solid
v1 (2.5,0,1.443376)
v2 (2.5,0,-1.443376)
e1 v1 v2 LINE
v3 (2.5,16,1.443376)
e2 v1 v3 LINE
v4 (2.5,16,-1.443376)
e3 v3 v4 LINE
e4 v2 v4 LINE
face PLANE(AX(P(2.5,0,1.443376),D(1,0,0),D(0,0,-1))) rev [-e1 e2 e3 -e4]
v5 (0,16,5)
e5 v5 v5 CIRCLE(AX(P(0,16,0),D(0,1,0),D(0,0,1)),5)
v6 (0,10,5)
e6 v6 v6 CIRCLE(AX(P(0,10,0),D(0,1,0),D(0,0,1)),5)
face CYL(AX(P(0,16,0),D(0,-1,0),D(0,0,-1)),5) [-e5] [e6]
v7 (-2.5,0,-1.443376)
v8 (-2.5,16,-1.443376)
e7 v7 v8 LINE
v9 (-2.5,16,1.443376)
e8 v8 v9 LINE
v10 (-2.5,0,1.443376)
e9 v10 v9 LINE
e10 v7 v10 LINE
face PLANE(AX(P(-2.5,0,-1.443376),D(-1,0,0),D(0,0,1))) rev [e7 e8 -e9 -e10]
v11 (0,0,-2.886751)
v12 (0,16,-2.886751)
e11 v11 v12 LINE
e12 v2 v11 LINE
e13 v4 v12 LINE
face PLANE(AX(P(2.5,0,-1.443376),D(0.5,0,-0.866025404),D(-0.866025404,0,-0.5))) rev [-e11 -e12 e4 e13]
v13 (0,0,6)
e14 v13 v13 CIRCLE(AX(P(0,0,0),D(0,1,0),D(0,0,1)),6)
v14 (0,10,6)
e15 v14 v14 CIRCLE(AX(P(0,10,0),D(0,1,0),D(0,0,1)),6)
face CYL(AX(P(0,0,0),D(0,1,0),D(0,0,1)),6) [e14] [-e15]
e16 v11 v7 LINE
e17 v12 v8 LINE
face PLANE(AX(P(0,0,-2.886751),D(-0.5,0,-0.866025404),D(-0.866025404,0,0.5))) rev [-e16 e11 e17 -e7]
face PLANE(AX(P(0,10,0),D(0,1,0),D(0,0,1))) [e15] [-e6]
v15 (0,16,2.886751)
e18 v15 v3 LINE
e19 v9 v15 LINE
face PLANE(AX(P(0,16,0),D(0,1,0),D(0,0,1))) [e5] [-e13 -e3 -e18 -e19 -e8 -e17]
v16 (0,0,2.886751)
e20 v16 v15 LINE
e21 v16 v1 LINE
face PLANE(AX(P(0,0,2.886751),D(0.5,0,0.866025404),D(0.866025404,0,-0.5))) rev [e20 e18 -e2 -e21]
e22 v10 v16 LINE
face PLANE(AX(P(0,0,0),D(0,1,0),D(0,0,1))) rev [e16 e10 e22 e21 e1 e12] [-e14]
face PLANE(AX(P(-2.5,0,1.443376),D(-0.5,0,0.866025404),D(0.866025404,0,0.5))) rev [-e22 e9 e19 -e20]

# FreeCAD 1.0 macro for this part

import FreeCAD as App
import Part
import Sketcher

V = App.Vector
Q = App.Units.Quantity


def add_polygon(sketch, points):
    """Adds a closed chain of lines whose ends are joined by coincident constraints."""
    first, n = sketch.GeometryCount, len(points)
    for a, b in zip(points, points[1:] + points[:1]):
        sketch.addGeometry(Part.LineSegment(App.Vector(*a, 0), App.Vector(*b, 0)), False)
    for i in range(n):
        sketch.addConstraint(Sketcher.Constraint("Coincident", first + i, 2, first + (i + 1) % n, 1))

doc = App.newDocument("Part")
body = doc.addObject("PartDesign::Body", "Body")

# Sketch on XZ plane
sketch1 = body.newObject("Sketcher::SketchObject", "Sketch")
sketch1.AttachmentSupport = (doc.getObject("XZ_Plane"), [""])
sketch1.MapMode = "FlatFace"
sketch1.addGeometry(Part.Circle(V(0, 0, 0), V(0, 0, 1), 7), False)
sketch1.addConstraint([
    Sketcher.Constraint("Coincident", 0, 3, -1, 1),
    Sketcher.Constraint("Diameter", 0, Q("14 mm")),
])
pad1 = body.newObject("PartDesign::Pad", "Pad")
pad1.Profile = sketch1
pad1.Length = 10
pad1.Reversed = True

# Sketch on XZ plane
sketch2 = body.newObject("Sketcher::SketchObject", "Sketch001")
sketch2.AttachmentSupport = (doc.getObject("XZ_Plane"), [""])
sketch2.MapMode = "FlatFace"
sketch2.AttachmentOffset = App.Placement(V(0, 0, -10), App.Rotation())
sketch2.addGeometry(Part.Circle(V(0, 0, 0), V(0, 0, 1), 5), False)
sketch2.addConstraint([
    Sketcher.Constraint("Coincident", 0, 3, -1, 1),
    Sketcher.Constraint("Diameter", 0, Q("10 mm")),
])
pad2 = body.newObject("PartDesign::Pad", "Pad001")
pad2.Profile = sketch2
pad2.Length = 6
pad2.Reversed = True

# Sketch on XZ plane
sketch3 = body.newObject("Sketcher::SketchObject", "Sketch002")
sketch3.AttachmentSupport = (doc.getObject("XZ_Plane"), [""])
sketch3.MapMode = "FlatFace"
sketch3.AttachmentOffset = App.Placement(V(0, 0, -16), App.Rotation())
add_polygon(sketch3, [(2.5, -1.4), (0, -2.9), (-2.5, -1.4), (-2.5, 1.4), (0, 2.9), (2.5, 1.4)])  # lines 0-5
sketch3.addConstraint([
    Sketcher.Constraint("Vertical", 2),
    Sketcher.Constraint("Vertical", 5),
    Sketcher.Constraint("Symmetric", 0, 2, 3, 2, -1, 1),
    Sketcher.Constraint("Symmetric", 1, 2, 4, 2, -1, 1),
    Sketcher.Constraint("PointOnObject", 0, 2, -2),
    Sketcher.Constraint("Parallel", 0, 3),
    Sketcher.Constraint("Horizontal", 2, 2, 4, 2),
    Sketcher.Constraint("Angle", 0, Q("-150 deg")),
    Sketcher.Constraint("DistanceX", 2, 2, 4, 2, Q("5 mm")),
    Sketcher.Constraint("DistanceY", 2, 1, 2, 2, Q("2.886751 mm")),
])
pocket1 = body.newObject("PartDesign::Pocket", "Pocket")
pocket1.Profile = sketch3
pocket1.Type = "ThroughAll"
pocket1.Reversed = True

# Sketch on XZ plane
sketch4 = body.newObject("Sketcher::SketchObject", "Sketch003")
sketch4.AttachmentSupport = (doc.getObject("XZ_Plane"), [""])
sketch4.MapMode = "FlatFace"
sketch4.AttachmentOffset = App.Placement(V(0, 0, -10), App.Rotation())
add_polygon(sketch4, [(-11, -11), (-11, 11), (11, 11), (11, -11)])  # lines 0-3
sketch4.addGeometry(Part.Circle(V(0, 0, 0), V(0, 0, 1), 6), False)  # 4
sketch4.addConstraint([
    Sketcher.Constraint("Vertical", 0),
    Sketcher.Constraint("Horizontal", 1),
    Sketcher.Constraint("Vertical", 2),
    Sketcher.Constraint("Horizontal", 3),
    Sketcher.Constraint("Coincident", 4, 3, -1, 1),
    Sketcher.Constraint("Symmetric", 0, 2, 2, 2, -1, 1),
    Sketcher.Constraint("Equal", 3, 0),
    Sketcher.Constraint("Diameter", 4, Q("12 mm")),
    Sketcher.Constraint("DistanceX", 1, 1, 1, 2, Q("21.092 mm")),
])
pocket2 = body.newObject("PartDesign::Pocket", "Pocket001")
pocket2.Profile = sketch4
pocket2.Type = "ThroughAll"
pocket2.Reversed = True

doc.recompute()
